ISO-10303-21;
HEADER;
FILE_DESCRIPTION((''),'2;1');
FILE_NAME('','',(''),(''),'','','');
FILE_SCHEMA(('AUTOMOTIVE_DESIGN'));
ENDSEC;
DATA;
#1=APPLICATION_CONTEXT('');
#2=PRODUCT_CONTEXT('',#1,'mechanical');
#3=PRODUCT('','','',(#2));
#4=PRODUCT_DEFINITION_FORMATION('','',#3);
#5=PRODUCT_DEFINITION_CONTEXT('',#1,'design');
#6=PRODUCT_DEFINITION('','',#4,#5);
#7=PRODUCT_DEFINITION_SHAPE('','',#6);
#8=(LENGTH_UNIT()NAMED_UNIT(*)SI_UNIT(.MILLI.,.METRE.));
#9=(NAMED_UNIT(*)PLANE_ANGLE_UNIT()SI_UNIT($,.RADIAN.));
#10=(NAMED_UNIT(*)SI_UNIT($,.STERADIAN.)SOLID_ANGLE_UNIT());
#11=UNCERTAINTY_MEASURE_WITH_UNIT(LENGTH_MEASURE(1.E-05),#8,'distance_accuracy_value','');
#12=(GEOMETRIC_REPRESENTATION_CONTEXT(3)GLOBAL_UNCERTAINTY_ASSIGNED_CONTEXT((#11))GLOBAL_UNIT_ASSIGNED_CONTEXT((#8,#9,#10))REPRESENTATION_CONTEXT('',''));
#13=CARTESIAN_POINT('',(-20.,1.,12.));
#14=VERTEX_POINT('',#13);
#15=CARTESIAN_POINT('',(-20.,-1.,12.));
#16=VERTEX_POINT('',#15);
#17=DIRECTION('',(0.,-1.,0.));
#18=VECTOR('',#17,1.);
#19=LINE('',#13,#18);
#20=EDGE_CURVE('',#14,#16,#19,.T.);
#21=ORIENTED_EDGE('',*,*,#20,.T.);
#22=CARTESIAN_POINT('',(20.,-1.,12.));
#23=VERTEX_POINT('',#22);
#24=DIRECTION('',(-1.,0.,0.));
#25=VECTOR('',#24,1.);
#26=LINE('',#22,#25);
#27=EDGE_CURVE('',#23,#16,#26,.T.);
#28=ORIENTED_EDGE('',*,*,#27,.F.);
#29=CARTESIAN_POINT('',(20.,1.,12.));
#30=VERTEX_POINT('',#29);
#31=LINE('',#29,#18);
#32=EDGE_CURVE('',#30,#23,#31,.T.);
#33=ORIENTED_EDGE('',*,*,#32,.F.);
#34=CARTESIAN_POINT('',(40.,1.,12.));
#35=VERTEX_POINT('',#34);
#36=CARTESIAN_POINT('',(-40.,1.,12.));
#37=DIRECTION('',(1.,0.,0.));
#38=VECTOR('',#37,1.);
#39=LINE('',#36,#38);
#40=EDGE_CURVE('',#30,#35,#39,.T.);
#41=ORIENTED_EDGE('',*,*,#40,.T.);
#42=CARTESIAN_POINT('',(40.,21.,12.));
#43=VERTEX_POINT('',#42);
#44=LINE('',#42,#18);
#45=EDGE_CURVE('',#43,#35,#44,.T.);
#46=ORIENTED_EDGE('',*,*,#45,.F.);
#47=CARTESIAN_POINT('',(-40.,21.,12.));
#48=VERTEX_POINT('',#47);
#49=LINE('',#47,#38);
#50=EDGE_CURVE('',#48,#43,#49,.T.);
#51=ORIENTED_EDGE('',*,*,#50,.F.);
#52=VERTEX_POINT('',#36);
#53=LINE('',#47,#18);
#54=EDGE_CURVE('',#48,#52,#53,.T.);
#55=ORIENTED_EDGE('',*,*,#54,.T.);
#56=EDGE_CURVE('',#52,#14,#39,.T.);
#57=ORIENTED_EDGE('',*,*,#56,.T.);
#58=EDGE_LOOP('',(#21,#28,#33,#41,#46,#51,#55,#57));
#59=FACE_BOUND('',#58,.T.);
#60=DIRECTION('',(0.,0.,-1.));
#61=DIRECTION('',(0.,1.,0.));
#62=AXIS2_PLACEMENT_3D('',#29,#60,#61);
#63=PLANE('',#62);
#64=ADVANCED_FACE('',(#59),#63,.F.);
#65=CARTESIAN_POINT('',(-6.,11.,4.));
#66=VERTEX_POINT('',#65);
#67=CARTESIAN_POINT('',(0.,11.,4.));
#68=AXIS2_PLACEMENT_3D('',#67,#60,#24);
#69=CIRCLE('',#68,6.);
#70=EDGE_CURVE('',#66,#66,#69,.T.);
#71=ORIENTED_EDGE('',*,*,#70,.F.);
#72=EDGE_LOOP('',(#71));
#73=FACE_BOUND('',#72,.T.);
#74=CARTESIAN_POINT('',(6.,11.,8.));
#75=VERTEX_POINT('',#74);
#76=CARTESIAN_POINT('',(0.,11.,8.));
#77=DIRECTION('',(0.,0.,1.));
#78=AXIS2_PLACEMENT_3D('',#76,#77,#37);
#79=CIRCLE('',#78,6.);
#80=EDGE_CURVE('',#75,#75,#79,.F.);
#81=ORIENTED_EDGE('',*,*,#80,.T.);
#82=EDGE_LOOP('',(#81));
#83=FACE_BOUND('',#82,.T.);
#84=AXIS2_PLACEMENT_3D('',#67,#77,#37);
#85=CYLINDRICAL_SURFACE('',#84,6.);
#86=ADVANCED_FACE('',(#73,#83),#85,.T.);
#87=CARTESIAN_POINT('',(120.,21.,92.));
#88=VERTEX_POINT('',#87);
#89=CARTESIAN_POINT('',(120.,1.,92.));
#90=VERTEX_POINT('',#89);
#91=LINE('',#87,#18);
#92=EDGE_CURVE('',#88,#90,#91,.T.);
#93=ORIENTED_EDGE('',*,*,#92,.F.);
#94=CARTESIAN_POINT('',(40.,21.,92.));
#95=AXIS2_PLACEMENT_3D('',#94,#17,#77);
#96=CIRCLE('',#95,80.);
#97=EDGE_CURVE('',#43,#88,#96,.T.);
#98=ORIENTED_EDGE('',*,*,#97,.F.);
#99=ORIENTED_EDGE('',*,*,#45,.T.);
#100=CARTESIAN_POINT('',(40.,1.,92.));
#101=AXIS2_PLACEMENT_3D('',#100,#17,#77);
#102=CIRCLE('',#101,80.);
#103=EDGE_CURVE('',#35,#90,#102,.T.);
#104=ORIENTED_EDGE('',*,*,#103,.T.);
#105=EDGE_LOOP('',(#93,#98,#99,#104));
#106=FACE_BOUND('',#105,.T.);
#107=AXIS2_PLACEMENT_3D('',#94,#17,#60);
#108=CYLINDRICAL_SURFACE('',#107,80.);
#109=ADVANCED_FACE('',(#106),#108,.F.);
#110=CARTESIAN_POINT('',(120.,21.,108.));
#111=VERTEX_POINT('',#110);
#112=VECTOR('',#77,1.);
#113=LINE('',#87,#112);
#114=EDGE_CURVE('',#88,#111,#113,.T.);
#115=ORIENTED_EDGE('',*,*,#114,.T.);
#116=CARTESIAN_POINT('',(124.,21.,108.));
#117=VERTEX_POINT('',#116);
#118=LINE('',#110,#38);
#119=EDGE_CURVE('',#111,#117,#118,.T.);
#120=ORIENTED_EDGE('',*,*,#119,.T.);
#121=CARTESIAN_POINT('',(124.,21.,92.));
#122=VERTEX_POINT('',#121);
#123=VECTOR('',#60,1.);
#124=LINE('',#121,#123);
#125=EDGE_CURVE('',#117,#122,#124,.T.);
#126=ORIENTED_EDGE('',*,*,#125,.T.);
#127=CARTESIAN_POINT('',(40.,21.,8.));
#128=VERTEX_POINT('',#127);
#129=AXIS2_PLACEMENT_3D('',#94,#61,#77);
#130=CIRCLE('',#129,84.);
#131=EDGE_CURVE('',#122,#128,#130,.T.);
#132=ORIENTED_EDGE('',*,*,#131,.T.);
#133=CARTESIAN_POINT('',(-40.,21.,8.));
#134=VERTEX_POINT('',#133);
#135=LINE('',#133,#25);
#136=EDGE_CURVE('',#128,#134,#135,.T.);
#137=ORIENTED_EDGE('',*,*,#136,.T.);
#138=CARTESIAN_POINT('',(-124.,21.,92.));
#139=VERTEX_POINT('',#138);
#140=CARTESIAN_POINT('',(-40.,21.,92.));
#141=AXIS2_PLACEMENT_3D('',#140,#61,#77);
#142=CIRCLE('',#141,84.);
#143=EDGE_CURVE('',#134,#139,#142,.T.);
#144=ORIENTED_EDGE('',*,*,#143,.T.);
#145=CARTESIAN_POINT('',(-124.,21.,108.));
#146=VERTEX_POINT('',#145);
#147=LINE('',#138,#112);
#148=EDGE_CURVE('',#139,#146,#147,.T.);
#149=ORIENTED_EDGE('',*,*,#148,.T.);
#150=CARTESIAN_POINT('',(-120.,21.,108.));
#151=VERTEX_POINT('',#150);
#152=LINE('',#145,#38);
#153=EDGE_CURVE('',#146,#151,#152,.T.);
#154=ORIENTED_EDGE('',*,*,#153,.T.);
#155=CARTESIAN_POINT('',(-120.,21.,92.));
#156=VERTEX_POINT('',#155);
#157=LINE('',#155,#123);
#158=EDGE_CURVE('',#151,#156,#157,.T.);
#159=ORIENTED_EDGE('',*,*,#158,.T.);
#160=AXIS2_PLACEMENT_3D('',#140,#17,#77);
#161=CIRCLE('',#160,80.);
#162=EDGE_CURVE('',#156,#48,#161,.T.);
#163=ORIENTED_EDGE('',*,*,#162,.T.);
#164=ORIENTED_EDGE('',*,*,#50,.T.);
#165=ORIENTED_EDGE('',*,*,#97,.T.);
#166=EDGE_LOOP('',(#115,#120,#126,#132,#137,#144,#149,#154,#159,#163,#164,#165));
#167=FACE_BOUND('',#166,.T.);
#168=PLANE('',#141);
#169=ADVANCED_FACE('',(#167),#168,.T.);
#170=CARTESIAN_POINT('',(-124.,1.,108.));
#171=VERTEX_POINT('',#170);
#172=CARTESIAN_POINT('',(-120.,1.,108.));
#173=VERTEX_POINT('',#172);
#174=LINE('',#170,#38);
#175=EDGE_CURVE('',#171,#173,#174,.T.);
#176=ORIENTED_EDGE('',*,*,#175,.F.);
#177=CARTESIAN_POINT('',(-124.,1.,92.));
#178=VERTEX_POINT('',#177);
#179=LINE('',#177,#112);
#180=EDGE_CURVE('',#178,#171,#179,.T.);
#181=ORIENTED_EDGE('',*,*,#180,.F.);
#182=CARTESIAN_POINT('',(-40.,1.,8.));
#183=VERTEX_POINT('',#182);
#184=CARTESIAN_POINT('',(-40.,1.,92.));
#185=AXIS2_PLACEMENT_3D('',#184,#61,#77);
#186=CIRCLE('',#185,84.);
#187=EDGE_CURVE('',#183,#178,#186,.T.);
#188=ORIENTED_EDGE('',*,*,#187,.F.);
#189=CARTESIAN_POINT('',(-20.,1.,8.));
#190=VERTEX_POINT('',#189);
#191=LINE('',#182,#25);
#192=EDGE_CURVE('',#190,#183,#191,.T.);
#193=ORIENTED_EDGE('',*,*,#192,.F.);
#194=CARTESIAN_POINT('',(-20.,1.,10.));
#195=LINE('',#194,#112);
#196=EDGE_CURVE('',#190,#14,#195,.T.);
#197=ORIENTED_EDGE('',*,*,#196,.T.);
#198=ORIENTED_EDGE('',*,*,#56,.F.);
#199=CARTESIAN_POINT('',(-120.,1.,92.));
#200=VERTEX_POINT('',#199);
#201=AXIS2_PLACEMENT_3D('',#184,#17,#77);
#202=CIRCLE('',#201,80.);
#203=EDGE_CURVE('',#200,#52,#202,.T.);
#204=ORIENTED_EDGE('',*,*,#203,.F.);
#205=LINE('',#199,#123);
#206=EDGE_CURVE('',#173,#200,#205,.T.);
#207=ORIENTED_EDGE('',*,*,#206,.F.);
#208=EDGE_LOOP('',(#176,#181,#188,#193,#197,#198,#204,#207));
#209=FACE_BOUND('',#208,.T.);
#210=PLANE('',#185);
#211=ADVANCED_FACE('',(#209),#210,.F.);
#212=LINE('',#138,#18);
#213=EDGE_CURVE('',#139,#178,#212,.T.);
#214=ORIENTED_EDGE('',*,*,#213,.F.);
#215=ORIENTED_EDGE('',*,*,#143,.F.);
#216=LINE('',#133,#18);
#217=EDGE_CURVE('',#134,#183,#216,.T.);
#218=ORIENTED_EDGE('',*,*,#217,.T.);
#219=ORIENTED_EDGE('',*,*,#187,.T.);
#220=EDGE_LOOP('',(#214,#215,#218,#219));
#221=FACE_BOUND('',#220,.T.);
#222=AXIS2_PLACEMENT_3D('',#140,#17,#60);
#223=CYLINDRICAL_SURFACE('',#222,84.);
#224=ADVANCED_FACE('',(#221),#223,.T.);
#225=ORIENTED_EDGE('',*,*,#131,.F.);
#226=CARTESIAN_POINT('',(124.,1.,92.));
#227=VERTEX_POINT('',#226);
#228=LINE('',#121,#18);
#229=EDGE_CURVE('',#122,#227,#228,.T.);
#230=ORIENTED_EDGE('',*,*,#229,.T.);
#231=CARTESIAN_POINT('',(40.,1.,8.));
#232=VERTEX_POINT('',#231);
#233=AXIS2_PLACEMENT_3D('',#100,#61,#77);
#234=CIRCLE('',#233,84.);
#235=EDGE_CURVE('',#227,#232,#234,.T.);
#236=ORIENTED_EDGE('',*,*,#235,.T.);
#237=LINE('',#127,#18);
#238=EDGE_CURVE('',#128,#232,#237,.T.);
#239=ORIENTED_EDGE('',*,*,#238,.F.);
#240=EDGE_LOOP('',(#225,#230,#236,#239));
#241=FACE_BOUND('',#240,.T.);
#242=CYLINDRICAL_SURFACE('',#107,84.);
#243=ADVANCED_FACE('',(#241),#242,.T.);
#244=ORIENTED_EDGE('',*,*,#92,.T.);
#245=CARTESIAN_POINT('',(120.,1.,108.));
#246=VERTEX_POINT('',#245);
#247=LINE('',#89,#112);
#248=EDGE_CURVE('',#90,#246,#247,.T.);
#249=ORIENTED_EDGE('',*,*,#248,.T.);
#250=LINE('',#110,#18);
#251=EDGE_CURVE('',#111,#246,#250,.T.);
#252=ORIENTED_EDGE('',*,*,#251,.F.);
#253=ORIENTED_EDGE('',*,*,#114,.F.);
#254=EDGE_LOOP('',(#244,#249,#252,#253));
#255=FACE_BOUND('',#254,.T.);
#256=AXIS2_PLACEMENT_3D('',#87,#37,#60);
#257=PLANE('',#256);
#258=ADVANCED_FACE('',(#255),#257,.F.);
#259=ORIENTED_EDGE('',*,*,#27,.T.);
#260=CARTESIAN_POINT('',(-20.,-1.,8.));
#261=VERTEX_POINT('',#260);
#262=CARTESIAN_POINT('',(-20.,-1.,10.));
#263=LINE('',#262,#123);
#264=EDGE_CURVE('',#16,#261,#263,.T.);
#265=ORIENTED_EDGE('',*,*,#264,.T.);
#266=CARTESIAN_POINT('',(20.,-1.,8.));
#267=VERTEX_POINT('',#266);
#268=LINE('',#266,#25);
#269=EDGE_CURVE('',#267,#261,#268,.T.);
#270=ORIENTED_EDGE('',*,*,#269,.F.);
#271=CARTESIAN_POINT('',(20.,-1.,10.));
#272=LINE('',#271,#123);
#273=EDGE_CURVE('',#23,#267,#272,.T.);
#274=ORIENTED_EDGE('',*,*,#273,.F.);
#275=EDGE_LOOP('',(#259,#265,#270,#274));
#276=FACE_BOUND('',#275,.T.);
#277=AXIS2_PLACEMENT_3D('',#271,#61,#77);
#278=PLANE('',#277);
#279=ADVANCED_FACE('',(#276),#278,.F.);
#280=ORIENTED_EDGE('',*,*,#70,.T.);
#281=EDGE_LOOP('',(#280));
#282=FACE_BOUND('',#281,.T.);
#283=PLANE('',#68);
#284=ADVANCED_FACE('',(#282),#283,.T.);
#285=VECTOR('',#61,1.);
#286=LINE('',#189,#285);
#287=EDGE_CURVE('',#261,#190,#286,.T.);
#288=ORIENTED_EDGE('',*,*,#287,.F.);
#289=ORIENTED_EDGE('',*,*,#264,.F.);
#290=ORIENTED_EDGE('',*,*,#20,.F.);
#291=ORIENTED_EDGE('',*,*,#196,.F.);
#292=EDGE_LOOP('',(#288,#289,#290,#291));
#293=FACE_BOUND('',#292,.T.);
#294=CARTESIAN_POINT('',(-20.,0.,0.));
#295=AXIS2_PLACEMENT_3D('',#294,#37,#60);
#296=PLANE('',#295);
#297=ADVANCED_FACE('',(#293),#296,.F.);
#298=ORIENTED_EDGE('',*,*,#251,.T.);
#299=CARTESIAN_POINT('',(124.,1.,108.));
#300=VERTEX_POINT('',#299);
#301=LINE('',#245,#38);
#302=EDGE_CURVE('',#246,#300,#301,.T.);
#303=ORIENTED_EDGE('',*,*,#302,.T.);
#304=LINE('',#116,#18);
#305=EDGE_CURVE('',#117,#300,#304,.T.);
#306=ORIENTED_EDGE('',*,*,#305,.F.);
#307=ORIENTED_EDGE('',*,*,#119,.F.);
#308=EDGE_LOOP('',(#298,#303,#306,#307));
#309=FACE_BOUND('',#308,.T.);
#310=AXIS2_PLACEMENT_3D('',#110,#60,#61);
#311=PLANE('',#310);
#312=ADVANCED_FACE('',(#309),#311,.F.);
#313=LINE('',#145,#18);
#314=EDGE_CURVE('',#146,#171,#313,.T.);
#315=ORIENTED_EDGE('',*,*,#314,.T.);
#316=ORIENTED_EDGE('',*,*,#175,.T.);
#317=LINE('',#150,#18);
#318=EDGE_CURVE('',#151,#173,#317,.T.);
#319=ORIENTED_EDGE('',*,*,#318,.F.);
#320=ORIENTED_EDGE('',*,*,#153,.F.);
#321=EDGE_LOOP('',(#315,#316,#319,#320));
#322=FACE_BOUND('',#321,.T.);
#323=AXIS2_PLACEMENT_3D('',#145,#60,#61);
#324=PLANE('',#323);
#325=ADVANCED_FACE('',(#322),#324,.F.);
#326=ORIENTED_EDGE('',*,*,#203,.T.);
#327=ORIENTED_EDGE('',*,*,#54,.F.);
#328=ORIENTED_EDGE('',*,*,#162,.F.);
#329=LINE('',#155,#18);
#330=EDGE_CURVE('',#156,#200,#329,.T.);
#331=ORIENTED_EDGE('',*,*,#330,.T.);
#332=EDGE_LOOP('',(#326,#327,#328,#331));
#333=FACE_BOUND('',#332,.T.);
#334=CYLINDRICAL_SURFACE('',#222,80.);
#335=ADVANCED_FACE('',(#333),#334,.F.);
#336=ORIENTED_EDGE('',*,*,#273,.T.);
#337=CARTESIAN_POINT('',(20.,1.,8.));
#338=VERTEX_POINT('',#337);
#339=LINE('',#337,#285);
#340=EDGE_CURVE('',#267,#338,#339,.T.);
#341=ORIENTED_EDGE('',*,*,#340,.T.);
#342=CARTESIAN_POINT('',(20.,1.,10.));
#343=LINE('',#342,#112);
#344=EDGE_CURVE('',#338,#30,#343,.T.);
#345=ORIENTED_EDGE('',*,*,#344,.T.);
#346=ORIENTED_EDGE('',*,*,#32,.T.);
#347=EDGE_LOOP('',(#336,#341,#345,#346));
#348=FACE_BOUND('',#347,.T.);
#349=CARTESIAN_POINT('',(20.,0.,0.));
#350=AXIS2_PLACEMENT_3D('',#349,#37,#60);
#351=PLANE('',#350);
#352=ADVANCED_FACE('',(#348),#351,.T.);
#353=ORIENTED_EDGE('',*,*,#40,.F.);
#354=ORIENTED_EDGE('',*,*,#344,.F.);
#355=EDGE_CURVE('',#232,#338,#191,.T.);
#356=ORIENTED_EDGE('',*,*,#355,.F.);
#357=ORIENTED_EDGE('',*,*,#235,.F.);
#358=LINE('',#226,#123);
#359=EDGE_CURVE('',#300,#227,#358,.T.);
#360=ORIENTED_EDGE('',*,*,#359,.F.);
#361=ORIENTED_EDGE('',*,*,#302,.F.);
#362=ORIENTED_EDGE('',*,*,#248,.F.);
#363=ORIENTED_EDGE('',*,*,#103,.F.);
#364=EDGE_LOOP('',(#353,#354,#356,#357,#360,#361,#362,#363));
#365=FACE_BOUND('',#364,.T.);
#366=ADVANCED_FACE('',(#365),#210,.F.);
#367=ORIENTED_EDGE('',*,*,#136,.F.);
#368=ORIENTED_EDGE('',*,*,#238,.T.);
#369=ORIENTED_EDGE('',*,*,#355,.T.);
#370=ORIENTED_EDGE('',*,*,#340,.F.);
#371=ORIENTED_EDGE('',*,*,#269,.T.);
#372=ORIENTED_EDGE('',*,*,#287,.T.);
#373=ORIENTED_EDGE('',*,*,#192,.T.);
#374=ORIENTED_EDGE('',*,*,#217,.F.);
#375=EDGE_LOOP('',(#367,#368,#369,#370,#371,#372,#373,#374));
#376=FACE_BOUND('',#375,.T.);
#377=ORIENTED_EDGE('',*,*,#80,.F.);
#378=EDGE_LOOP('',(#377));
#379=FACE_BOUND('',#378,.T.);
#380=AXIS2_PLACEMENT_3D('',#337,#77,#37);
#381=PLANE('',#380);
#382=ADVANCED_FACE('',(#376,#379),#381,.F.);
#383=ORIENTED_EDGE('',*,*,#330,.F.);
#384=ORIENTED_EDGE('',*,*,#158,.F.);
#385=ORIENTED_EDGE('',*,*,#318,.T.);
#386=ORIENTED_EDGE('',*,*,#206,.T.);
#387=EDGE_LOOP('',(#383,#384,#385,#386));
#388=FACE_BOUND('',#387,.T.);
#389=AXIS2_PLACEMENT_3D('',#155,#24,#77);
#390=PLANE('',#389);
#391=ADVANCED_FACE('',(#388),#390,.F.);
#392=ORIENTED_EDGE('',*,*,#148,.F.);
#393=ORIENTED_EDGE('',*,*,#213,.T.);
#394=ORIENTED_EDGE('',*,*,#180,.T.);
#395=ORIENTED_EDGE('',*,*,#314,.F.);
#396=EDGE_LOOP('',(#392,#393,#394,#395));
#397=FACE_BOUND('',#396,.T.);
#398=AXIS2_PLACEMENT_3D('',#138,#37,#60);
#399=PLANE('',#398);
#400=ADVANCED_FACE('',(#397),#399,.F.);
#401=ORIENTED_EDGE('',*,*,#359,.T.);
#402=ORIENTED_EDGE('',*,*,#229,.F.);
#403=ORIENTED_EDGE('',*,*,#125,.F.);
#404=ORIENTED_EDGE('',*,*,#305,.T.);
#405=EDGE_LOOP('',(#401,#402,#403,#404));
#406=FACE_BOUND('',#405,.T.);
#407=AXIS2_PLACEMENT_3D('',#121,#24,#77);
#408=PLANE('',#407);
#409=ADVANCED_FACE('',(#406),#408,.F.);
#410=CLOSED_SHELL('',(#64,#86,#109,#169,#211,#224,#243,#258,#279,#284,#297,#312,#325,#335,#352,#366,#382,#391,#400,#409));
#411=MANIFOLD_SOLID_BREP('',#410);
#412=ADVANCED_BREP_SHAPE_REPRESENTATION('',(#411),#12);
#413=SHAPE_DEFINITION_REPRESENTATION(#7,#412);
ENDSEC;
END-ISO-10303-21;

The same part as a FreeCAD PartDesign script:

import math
import FreeCAD as App
import Part
import Sketcher
Q = App.Units.Quantity

doc = App.newDocument("Part")
body = doc.addObject("PartDesign::Body", "Body")

# Sketch on YZ plane
sketch1 = doc.addObject("Sketcher::SketchObject", "Sketch")
body.addObject(sketch1)
sketch1.AttachmentSupport = (doc.YZ_Plane, [""])
sketch1.MapMode = "FlatFace"
sketch1.addGeometry([
    Part.LineSegment(App.Vector(1, 8, 0), App.Vector(1, 12, 0)),
    Part.LineSegment(App.Vector(1, 12, 0), App.Vector(-1, 12, 0)),
    Part.LineSegment(App.Vector(-1, 12, 0), App.Vector(-1, 8, 0)),
    Part.LineSegment(App.Vector(-1, 8, 0), App.Vector(1, 8, 0)),
], False)
sketch1.addConstraint([
    Sketcher.Constraint("Coincident", 0, 2, 1, 1),
    Sketcher.Constraint("Coincident", 1, 2, 2, 1),
    Sketcher.Constraint("Coincident", 2, 2, 3, 1),
    Sketcher.Constraint("Coincident", 3, 2, 0, 1),
    Sketcher.Constraint("Vertical", 0),
    Sketcher.Constraint("Horizontal", 1),
    Sketcher.Constraint("Vertical", 2),
    Sketcher.Constraint("Horizontal", 3),
    Sketcher.Constraint("DistanceX", 1, 2, 1, 1, Q("2 mm")),
    Sketcher.Constraint("DistanceY", 0, 1, 0, 2, Q("4 mm")),
    Sketcher.Constraint("DistanceX", -1, 1, 0, 2, Q("1 mm")),
    Sketcher.Constraint("DistanceY", -1, 1, 0, 2, Q("12 mm")),
])
pad1 = doc.addObject("PartDesign::Pad", "Pad")
body.addObject(pad1)
pad1.Profile = sketch1
pad1.Length = 40
pad1.Midplane = True

# Sketch on XZ plane
sketch2 = doc.addObject("Sketcher::SketchObject", "Sketch001")
body.addObject(sketch2)
sketch2.AttachmentSupport = (doc.XZ_Plane, [""])
sketch2.MapMode = "FlatFace"
sketch2.AttachmentOffset = App.Placement(App.Vector(0, 0, -1), App.Rotation())
sketch2.addGeometry([
    Part.LineSegment(App.Vector(40, 8, 0), App.Vector(-40, 8, 0)),  # 0
    Part.ArcOfCircle(Part.Circle(App.Vector(-40, 92, 0), App.Vector(0, 0, 1), 84), math.radians(180), math.radians(270)),  # 1
    Part.LineSegment(App.Vector(-124, 92, 0), App.Vector(-124, 108, 0)),  # 2
    Part.LineSegment(App.Vector(-124, 108, 0), App.Vector(-120, 108, 0)),  # 3
    Part.LineSegment(App.Vector(-120, 108, 0), App.Vector(-120, 92, 0)),  # 4
    Part.ArcOfCircle(Part.Circle(App.Vector(-40, 92, 0), App.Vector(0, 0, 1), 80), math.radians(180), math.radians(270)),  # 5
    Part.LineSegment(App.Vector(-40, 12, 0), App.Vector(40, 12, 0)),  # 6
    Part.ArcOfCircle(Part.Circle(App.Vector(40, 92, 0), App.Vector(0, 0, 1), 80), math.radians(-90), math.radians(0)),  # 7
    Part.LineSegment(App.Vector(120, 92, 0), App.Vector(120, 108, 0)),  # 8
    Part.LineSegment(App.Vector(120, 108, 0), App.Vector(124, 108, 0)),  # 9
    Part.LineSegment(App.Vector(124, 108, 0), App.Vector(124, 92, 0)),  # 10
    Part.ArcOfCircle(Part.Circle(App.Vector(40, 92, 0), App.Vector(0, 0, 1), 84), math.radians(-90), math.radians(0)),  # 11
], False)
sketch2.addConstraint([
    Sketcher.Constraint("Tangent", 0, 2, 1, 2),
    Sketcher.Constraint("Tangent", 1, 1, 2, 1),
    Sketcher.Constraint("Coincident", 2, 2, 3, 1),
    Sketcher.Constraint("Coincident", 3, 2, 4, 1),
    Sketcher.Constraint("Tangent", 4, 2, 5, 1),
    Sketcher.Constraint("Tangent", 5, 2, 6, 1),
    Sketcher.Constraint("Tangent", 6, 2, 7, 1),
    Sketcher.Constraint("Tangent", 7, 2, 8, 1),
    Sketcher.Constraint("Coincident", 8, 2, 9, 1),
    Sketcher.Constraint("Coincident", 9, 2, 10, 1),
    Sketcher.Constraint("Tangent", 10, 2, 11, 2),
    Sketcher.Constraint("Tangent", 11, 1, 0, 1),
    Sketcher.Constraint("Horizontal", 0),
    Sketcher.Constraint("Vertical", 2),
    Sketcher.Constraint("Horizontal", 3),
    Sketcher.Constraint("Vertical", 4),
    Sketcher.Constraint("Horizontal", 6),
    Sketcher.Constraint("Vertical", 8),
    Sketcher.Constraint("Horizontal", 9),
    Sketcher.Constraint("Vertical", 10),
    Sketcher.Constraint("Coincident", 5, 3, 1, 3),
    Sketcher.Constraint("Coincident", 11, 3, 7, 3),
    Sketcher.Constraint("Equal", 5, 7),
    Sketcher.Constraint("Symmetric", 3, 2, 8, 2, -2),
    Sketcher.Constraint("Radius", 1, Q("84 mm")),
    Sketcher.Constraint("Radius", 5, Q("80 mm")),
    Sketcher.Constraint("DistanceX", 0, 2, 0, 1, Q("80 mm")),
    Sketcher.Constraint("DistanceY", 2, 1, 2, 2, Q("16 mm")),
    Sketcher.Constraint("DistanceY", -1, 1, 1, 3, Q("92 mm")),
])
pad2 = doc.addObject("PartDesign::Pad", "Pad001")
body.addObject(pad2)
pad2.Profile = sketch2
pad2.Length = 20
pad2.Reversed = True

# Sketch on XY plane
sketch3 = doc.addObject("Sketcher::SketchObject", "Sketch002")
body.addObject(sketch3)
sketch3.AttachmentSupport = (doc.XY_Plane, [""])
sketch3.MapMode = "FlatFace"
sketch3.AttachmentOffset = App.Placement(App.Vector(0, 0, 8), App.Rotation())
sketch3.addGeometry(Part.Circle(App.Vector(0, 11, 0), App.Vector(0, 0, 1), 6), False)
sketch3.addConstraint([
    Sketcher.Constraint("PointOnObject", 0, 3, -2),
    Sketcher.Constraint("Diameter", 0, Q("12 mm")),
    Sketcher.Constraint("DistanceY", -1, 1, 0, 3, Q("11 mm")),
])
pad3 = doc.addObject("PartDesign::Pad", "Pad002")
body.addObject(pad3)
pad3.Profile = sketch3
pad3.Length = 4
pad3.Reversed = True

doc.recompute()
